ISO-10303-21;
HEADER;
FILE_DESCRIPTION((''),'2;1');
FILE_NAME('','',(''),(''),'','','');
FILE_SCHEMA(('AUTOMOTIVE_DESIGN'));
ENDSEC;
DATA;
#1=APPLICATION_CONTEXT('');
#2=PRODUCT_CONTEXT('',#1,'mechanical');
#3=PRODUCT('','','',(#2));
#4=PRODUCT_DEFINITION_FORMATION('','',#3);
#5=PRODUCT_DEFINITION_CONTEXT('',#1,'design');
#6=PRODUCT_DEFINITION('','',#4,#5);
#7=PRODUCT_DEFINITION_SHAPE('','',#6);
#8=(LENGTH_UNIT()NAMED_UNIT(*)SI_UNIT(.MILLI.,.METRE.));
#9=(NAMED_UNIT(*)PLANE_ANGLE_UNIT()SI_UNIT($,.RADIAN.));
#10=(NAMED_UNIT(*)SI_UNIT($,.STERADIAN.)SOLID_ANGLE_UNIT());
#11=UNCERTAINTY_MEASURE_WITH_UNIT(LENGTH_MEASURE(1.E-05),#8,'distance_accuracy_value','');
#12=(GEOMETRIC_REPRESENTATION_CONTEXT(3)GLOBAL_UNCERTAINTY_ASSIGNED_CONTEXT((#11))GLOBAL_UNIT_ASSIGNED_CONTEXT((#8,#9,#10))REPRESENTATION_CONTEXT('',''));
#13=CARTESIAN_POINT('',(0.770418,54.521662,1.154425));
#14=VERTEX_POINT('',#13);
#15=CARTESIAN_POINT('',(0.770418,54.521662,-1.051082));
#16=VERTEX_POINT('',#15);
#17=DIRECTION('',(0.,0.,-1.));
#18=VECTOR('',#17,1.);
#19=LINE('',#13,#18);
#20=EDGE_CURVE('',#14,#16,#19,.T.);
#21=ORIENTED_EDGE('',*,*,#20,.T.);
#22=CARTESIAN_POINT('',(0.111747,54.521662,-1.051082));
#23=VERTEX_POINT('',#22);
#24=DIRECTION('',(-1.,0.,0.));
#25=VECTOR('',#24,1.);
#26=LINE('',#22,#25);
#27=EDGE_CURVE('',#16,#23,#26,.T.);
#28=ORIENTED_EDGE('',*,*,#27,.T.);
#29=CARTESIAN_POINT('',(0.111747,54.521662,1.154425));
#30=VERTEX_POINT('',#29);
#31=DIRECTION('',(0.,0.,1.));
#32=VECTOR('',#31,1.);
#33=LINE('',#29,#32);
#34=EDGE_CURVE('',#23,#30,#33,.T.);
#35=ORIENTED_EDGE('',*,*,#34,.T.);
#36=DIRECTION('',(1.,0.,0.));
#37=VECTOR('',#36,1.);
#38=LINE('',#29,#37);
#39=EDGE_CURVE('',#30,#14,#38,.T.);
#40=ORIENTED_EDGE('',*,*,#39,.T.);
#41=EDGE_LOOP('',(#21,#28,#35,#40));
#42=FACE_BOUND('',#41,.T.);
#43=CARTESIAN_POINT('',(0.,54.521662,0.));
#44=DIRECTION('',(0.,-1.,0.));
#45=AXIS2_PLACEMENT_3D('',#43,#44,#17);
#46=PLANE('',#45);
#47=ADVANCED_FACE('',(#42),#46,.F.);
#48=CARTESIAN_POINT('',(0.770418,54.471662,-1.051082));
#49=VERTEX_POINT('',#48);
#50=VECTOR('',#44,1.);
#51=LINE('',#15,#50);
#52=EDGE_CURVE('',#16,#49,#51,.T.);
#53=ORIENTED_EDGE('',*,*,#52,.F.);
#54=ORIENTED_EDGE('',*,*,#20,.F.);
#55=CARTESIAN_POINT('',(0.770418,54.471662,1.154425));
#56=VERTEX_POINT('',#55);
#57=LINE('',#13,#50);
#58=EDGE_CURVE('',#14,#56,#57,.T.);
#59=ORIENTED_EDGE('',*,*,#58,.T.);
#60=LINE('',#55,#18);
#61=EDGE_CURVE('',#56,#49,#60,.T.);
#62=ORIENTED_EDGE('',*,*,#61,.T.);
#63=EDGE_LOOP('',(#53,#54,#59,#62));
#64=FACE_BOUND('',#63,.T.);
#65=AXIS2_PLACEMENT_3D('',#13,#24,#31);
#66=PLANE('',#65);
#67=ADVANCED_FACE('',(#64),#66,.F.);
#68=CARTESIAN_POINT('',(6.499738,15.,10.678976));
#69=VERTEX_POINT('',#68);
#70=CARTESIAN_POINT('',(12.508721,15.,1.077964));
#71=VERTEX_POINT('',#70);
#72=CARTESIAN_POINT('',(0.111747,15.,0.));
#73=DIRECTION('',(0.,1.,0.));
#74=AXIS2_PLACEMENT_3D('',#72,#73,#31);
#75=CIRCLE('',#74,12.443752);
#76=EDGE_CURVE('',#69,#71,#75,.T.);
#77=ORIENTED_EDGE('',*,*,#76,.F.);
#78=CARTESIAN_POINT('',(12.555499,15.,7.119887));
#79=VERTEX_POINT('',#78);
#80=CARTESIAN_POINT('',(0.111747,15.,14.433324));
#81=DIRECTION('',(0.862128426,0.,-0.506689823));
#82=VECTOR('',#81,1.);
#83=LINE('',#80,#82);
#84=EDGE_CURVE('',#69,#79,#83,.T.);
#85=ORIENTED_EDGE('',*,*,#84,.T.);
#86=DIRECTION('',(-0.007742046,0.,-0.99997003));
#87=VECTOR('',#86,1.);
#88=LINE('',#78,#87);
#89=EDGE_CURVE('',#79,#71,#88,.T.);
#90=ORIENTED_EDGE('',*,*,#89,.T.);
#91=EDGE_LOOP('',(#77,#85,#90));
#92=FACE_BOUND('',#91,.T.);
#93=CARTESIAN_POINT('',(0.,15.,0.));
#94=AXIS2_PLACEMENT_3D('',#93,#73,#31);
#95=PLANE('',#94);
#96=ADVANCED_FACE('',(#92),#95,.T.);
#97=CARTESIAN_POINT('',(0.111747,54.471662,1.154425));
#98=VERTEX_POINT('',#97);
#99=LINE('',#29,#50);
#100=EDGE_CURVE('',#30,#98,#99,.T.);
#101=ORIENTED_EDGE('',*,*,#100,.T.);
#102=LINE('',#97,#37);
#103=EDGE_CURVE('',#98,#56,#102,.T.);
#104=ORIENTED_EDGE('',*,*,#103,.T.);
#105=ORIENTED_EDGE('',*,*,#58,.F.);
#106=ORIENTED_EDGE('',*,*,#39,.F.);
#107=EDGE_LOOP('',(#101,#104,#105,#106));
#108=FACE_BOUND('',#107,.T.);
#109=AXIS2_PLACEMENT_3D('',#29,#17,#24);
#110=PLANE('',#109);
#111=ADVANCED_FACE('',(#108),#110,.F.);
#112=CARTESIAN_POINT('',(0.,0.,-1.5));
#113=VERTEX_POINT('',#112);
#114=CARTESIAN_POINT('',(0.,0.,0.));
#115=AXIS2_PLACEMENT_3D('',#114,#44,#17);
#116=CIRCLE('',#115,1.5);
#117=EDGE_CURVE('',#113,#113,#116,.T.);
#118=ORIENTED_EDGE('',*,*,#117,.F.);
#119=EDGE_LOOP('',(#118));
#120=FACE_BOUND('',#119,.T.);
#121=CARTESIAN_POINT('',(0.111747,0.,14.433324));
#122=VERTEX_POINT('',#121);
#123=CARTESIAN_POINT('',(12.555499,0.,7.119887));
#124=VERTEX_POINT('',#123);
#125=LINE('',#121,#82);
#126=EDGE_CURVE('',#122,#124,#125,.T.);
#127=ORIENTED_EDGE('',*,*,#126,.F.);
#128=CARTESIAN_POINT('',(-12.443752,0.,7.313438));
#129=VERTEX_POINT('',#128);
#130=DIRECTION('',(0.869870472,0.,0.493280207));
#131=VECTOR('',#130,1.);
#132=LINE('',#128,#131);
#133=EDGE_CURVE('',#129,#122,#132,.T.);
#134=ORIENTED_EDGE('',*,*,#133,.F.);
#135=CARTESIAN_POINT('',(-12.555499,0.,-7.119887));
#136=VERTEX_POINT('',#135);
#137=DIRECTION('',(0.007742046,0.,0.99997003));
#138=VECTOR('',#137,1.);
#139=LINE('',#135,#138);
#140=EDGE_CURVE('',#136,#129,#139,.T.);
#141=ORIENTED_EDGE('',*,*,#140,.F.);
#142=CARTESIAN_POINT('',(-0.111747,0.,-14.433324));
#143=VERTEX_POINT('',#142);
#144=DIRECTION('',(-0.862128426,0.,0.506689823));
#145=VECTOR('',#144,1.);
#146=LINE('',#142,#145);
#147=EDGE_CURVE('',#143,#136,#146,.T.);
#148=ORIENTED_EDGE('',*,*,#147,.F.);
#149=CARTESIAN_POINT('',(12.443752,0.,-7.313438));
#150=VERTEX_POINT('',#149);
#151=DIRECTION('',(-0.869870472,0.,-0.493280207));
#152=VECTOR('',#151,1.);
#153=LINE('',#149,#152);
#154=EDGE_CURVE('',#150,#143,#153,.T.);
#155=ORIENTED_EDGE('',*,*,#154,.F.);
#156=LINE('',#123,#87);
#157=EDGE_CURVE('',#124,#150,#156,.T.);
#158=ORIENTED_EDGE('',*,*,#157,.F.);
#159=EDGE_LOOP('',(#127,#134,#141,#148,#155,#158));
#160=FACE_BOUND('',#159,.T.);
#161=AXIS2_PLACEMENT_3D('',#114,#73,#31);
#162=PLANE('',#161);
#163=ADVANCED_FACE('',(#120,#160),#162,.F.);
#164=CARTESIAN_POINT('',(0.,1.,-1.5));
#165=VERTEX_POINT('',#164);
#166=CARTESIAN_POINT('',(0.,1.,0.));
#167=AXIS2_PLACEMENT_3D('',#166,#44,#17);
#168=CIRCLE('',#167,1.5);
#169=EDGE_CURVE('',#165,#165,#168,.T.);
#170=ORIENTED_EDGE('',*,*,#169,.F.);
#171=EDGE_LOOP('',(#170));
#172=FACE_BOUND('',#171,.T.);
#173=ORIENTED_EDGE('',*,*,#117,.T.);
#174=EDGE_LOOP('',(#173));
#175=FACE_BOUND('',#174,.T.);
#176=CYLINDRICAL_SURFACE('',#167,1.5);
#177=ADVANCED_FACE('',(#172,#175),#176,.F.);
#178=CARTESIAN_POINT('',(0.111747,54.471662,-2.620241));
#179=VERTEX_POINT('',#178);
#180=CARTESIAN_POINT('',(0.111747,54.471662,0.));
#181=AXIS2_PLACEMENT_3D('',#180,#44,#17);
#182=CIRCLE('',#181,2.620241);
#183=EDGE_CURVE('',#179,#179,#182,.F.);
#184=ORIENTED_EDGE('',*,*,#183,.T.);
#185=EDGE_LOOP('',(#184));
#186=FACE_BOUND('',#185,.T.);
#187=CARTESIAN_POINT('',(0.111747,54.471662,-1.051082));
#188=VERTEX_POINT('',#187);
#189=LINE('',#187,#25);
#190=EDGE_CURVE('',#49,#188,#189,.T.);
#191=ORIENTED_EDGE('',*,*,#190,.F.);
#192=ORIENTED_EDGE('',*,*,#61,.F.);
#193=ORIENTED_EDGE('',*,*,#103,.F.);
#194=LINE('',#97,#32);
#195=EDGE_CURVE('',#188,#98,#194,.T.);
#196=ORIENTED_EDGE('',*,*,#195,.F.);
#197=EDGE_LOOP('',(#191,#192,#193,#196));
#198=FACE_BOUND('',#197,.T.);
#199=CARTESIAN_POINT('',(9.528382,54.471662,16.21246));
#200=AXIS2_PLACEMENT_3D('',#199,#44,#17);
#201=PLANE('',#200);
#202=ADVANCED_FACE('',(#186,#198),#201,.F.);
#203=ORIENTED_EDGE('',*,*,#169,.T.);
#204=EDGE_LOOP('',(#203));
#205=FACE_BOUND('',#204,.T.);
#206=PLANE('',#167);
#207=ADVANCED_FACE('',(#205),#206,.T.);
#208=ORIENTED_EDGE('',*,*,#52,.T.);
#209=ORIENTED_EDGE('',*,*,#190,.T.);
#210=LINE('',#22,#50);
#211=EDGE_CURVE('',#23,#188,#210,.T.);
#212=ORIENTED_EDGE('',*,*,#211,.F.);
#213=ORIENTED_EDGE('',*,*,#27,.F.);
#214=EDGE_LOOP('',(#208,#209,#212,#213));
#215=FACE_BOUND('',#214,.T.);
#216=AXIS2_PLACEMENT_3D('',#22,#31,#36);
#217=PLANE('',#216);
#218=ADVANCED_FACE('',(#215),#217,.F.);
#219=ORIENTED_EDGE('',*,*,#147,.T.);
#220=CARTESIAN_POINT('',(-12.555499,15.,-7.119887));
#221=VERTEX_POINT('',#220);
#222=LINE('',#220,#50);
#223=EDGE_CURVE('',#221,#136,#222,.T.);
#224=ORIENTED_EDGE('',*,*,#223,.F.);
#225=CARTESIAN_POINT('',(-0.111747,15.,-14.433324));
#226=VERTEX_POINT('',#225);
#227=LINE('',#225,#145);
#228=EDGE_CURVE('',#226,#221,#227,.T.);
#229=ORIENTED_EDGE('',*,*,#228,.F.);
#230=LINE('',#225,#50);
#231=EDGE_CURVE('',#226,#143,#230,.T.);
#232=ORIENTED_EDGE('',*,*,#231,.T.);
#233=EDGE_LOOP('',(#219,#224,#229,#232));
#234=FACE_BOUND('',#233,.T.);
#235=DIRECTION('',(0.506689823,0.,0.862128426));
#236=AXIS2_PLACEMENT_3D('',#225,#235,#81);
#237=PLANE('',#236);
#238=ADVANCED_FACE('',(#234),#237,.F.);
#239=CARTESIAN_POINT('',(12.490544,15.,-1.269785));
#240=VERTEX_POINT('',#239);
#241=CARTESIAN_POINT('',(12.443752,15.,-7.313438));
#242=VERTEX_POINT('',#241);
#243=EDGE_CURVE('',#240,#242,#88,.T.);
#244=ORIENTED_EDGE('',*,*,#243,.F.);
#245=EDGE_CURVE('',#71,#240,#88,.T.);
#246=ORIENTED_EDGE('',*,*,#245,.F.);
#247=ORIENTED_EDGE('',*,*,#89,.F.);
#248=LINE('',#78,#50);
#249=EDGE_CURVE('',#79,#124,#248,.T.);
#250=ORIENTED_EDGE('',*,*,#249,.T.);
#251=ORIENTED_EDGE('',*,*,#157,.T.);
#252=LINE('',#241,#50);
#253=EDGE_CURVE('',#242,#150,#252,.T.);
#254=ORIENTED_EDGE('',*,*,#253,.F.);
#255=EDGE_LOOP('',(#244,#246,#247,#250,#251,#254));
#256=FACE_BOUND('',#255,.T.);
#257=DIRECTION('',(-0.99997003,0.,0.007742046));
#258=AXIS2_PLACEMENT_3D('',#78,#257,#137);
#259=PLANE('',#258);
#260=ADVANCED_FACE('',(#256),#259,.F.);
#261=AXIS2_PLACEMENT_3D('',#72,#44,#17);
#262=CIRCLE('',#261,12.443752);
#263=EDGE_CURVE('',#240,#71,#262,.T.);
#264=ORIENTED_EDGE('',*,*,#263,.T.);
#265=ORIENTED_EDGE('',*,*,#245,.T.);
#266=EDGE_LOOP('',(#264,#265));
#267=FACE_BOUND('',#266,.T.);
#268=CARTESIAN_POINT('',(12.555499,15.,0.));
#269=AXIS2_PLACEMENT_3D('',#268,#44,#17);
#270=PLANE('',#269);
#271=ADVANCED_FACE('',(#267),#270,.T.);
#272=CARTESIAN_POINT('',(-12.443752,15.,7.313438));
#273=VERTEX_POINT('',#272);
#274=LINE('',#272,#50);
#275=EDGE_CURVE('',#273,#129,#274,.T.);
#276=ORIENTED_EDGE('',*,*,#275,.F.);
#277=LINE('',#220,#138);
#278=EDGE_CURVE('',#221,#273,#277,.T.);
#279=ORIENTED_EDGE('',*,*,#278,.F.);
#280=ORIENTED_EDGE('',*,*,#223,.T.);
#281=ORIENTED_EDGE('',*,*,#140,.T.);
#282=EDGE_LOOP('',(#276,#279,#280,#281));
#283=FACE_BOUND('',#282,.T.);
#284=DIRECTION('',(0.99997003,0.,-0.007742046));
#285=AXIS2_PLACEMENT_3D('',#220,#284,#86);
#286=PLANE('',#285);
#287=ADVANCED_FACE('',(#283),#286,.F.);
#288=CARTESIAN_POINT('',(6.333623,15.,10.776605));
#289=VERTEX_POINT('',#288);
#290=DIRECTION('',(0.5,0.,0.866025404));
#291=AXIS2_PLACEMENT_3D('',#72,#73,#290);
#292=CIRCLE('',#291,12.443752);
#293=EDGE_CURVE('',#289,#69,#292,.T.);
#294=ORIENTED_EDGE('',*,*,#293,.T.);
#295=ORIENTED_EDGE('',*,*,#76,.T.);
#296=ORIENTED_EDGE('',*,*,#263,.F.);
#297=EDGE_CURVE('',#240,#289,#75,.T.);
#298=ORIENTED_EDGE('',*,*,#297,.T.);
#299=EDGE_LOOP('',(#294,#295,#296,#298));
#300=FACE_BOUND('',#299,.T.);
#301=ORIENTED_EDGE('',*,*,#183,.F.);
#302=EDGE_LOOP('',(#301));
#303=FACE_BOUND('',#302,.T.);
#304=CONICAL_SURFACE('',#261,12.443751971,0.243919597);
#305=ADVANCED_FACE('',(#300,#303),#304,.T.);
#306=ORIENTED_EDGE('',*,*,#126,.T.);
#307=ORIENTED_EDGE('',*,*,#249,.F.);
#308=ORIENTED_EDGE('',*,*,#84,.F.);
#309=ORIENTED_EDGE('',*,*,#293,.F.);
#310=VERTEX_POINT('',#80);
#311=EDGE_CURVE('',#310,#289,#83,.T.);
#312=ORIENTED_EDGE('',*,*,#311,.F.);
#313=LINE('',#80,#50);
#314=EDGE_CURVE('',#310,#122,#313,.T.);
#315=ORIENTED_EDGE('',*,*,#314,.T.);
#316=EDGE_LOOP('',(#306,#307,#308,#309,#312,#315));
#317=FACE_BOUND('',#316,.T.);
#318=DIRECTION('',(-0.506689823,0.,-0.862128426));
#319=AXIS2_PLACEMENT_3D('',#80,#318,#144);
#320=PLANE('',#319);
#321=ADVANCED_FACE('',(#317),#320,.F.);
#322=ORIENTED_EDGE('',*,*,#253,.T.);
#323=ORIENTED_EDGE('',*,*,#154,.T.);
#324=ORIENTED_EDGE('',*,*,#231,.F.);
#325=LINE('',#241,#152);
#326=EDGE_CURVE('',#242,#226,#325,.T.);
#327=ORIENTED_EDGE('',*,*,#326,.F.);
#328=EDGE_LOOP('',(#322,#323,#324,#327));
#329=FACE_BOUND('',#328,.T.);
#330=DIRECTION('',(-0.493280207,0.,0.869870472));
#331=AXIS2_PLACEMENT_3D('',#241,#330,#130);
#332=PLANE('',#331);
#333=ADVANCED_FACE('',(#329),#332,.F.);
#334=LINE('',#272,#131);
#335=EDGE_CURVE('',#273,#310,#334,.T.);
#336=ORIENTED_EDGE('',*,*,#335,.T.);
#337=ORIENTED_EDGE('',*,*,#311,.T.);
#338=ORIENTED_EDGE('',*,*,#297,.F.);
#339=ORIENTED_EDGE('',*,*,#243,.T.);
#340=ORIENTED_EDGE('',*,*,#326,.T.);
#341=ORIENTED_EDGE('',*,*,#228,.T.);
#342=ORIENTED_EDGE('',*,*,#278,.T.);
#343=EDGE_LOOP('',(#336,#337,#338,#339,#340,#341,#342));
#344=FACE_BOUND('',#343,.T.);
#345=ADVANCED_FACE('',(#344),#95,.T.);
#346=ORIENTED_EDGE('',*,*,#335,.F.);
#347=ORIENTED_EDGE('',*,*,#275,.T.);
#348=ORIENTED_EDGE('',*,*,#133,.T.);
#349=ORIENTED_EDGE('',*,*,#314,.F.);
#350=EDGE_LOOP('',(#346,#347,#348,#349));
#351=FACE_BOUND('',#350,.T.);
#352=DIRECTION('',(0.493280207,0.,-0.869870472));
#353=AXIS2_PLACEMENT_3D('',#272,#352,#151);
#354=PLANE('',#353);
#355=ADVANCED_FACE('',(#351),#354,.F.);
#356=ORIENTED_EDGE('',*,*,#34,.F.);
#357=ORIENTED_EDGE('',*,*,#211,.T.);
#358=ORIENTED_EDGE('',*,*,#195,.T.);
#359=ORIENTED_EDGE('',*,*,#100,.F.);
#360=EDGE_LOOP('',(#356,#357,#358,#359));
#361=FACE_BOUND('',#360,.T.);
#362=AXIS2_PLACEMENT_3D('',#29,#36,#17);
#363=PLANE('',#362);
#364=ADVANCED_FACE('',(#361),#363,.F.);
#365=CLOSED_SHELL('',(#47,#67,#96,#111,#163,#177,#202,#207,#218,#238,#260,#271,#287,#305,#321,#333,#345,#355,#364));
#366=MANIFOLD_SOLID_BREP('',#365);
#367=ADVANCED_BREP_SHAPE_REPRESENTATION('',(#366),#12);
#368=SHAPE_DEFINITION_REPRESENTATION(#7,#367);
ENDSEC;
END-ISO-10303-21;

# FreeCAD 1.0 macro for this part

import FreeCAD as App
import Part
import Sketcher
from FreeCAD import Vector
Q = App.Units.Quantity

doc = App.newDocument("Part")
body = doc.addObject("PartDesign::Body", "Body")

# Sketch on XZ plane
sketch1 = body.newObject("Sketcher::SketchObject", "Sketch")
sketch1.AttachmentSupport = (doc.getObject("XZ_Plane"), [""])
sketch1.MapMode = "FlatFace"
sketch1.addGeometry([
    Part.LineSegment(Vector(12.555499, 7.119887, 0), Vector(12.443752, -7.313438, 0)),  # 0
    Part.LineSegment(Vector(12.443752, -7.313438, 0), Vector(-0.111747, -14.433324, 0)),  # 1
    Part.LineSegment(Vector(-0.111747, -14.433324, 0), Vector(-12.555499, -7.119887, 0)),  # 2
    Part.LineSegment(Vector(-12.555499, -7.119887, 0), Vector(-12.443752, 7.313438, 0)),  # 3
    Part.LineSegment(Vector(-12.443752, 7.313438, 0), Vector(0.111747, 14.433324, 0)),  # 4
    Part.LineSegment(Vector(0.111747, 14.433324, 0), Vector(12.555499, 7.119887, 0)),  # 5
], False)
sketch1.addConstraint([
    Sketcher.Constraint("Coincident", 0, 2, 1, 1),
    Sketcher.Constraint("Coincident", 1, 2, 2, 1),
    Sketcher.Constraint("Coincident", 2, 2, 3, 1),
    Sketcher.Constraint("Coincident", 3, 2, 4, 1),
    Sketcher.Constraint("Coincident", 4, 2, 5, 1),
    Sketcher.Constraint("Coincident", 5, 2, 0, 1),
    Sketcher.Constraint("Symmetric", 0, 2, 3, 2, -1, 1),
    Sketcher.Constraint("Symmetric", 1, 2, 4, 2, -1, 1),
    Sketcher.Constraint("Symmetric", 2, 2, 5, 2, -1, 1),
    Sketcher.Constraint("Equal", 0, 1),
    Sketcher.Constraint("Equal", 1, 2),
    Sketcher.Constraint("DistanceX", 2, 2, -1, 1, Q("12.555499 mm")),
    Sketcher.Constraint("DistanceX", 1, 2, 0, 2, Q("12.555499 mm")),
    Sketcher.Constraint("DistanceX", -1, 1, 0, 2, Q("12.443752 mm")),
    Sketcher.Constraint("DistanceY", 0, 2, 2, 2, Q("0.193551 mm")),
])
pad1 = body.newObject("PartDesign::Pad", "Pad")
pad1.Profile = sketch1
pad1.Length = 15
pad1.Reversed = True

# Sketch on XY plane
sketch2 = body.newObject("Sketcher::SketchObject", "Sketch001")
sketch2.AttachmentSupport = (doc.getObject("XY_Plane"), [""])
sketch2.MapMode = "FlatFace"
sketch2.addGeometry([
    Part.LineSegment(Vector(0, 65, 0), Vector(0, 15, 0)),
    Part.LineSegment(Vector(0, 15, 0), Vector(13, 15, 0)),
    Part.LineSegment(Vector(13, 15, 0), Vector(0, 65, 0)),
], False)
sketch2.addGeometry(Part.LineSegment(Vector(0, 15, 0), Vector(0, 65, 0)), True)  # axis
sketch2.addConstraint([
    Sketcher.Constraint("Coincident", 0, 2, 1, 1),
    Sketcher.Constraint("Coincident", 1, 2, 2, 1),
    Sketcher.Constraint("Coincident", 2, 2, 0, 1),
    Sketcher.Constraint("Vertical", 0),
    Sketcher.Constraint("Horizontal", 1),
    Sketcher.Constraint("Vertical", 3),
    Sketcher.Constraint("Coincident", 3, 1, 0, 2),
    Sketcher.Constraint("Equal", 0, 3),
    Sketcher.Constraint("DistanceY", 0, 2, 0, 1, Q("50 mm")),
    Sketcher.Constraint("DistanceY", -1, 1, 0, 2, Q("15 mm")),
    Sketcher.Constraint("DistanceX", 1, 1, 1, 2, Q("12.443752 mm")),
    Sketcher.Constraint("DistanceX", -1, 1, 1, 2, Q("12.555499 mm")),
])
revolution = body.newObject("PartDesign::Revolution", "Revolution")
revolution.Profile = sketch2
revolution.ReferenceAxis = (sketch2, ["Axis0"])
revolution.Angle = 360

# Sketch on an angled plane
sketch3 = body.newObject("Sketcher::SketchObject", "Sketch002")
sketch3.Placement = App.Placement(Vector(-6.333623, 0, -10.776605), App.Rotation(Vector(-0.862128426, 0, 0.506689823), Vector(0, 1, 0), Vector(-0.506689823, 0, -0.862128426), "ZXY"))
sketch3.addGeometry([
    Part.LineSegment(Vector(-7, 67, 0), Vector(-7, 54, 0)),
    Part.LineSegment(Vector(-7, 54, 0), Vector(7, 54, 0)),
    Part.LineSegment(Vector(7, 54, 0), Vector(7, 67, 0)),
    Part.LineSegment(Vector(7, 67, 0), Vector(-7, 67, 0)),
], False)
sketch3.addConstraint([
    Sketcher.Constraint("Coincident", 0, 2, 1, 1),
    Sketcher.Constraint("Coincident", 1, 2, 2, 1),
    Sketcher.Constraint("Coincident", 2, 2, 3, 1),
    Sketcher.Constraint("Coincident", 3, 2, 0, 1),
    Sketcher.Constraint("Vertical", 0),
    Sketcher.Constraint("Horizontal", 1),
    Sketcher.Constraint("Vertical", 2),
    Sketcher.Constraint("Horizontal", 3),
    Sketcher.Constraint("DistanceY", 0, 2, 0, 1, Q("12.30543 mm")),
    Sketcher.Constraint("DistanceX", 1, 1, 1, 2, Q("14.433757 mm")),
    Sketcher.Constraint("DistanceX", 0, 2, -1, 1, Q("7.216878 mm")),
    Sketcher.Constraint("DistanceY", -1, 1, 0, 2, Q("54.471662 mm")),
])
pocket1 = body.newObject("PartDesign::Pocket", "Pocket")
pocket1.Profile = sketch3
pocket1.Type = "ThroughAll"

# Sketch on XZ plane
sketch4 = body.newObject("Sketcher::SketchObject", "Sketch003")
sketch4.AttachmentSupport = (doc.getObject("XZ_Plane"), [""])
sketch4.MapMode = "FlatFace"
sketch4.addGeometry(Part.Circle(Vector(0, 0, 0), Vector(0, 0, 1), 1.5), False)
sketch4.addConstraint([
    Sketcher.Constraint("Coincident", 0, 3, -1, 1),
    Sketcher.Constraint("Diameter", 0, Q("3 mm")),
])
pocket2 = body.newObject("PartDesign::Pocket", "Pocket001")
pocket2.Profile = sketch4
pocket2.Length = 1

# Sketch on XZ plane
sketch5 = body.newObject("Sketcher::SketchObject", "Sketch004")
sketch5.AttachmentSupport = (doc.getObject("XZ_Plane"), [""])
sketch5.MapMode = "FlatFace"
sketch5.AttachmentOffset = App.Placement(Vector(0, 0, -54.471662), App.Rotation())
sketch5.addGeometry([
    Part.LineSegment(Vector(0.1, -1.1, 0), Vector(0.1, 1.2, 0)),
    Part.LineSegment(Vector(0.1, 1.2, 0), Vector(0.8, 1.2, 0)),
    Part.LineSegment(Vector(0.8, 1.2, 0), Vector(0.8, -1.1, 0)),
    Part.LineSegment(Vector(0.8, -1.1, 0), Vector(0.1, -1.1, 0)),
], False)
sketch5.addConstraint([
    Sketcher.Constraint("Coincident", 0, 2, 1, 1),
    Sketcher.Constraint("Coincident", 1, 2, 2, 1),
    Sketcher.Constraint("Coincident", 2, 2, 3, 1),
    Sketcher.Constraint("Coincident", 3, 2, 0, 1),
    Sketcher.Constraint("Vertical", 0),
    Sketcher.Constraint("Horizontal", 1),
    Sketcher.Constraint("Vertical", 2),
    Sketcher.Constraint("Horizontal", 3),
    Sketcher.Constraint("DistanceX", 1, 1, 1, 2, Q("0.658671 mm")),
    Sketcher.Constraint("DistanceY", 0, 1, 0, 2, Q("2.205507 mm")),
    Sketcher.Constraint("DistanceX", -1, 1, 1, 2, Q("0.770418 mm")),
    Sketcher.Constraint("DistanceY", -1, 1, 0, 2, Q("1.154425 mm")),
])
pad2 = body.newObject("PartDesign::Pad", "Pad001")
pad2.Profile = sketch5
pad2.Length = 0.05
pad2.Reversed = True

doc.recompute()
